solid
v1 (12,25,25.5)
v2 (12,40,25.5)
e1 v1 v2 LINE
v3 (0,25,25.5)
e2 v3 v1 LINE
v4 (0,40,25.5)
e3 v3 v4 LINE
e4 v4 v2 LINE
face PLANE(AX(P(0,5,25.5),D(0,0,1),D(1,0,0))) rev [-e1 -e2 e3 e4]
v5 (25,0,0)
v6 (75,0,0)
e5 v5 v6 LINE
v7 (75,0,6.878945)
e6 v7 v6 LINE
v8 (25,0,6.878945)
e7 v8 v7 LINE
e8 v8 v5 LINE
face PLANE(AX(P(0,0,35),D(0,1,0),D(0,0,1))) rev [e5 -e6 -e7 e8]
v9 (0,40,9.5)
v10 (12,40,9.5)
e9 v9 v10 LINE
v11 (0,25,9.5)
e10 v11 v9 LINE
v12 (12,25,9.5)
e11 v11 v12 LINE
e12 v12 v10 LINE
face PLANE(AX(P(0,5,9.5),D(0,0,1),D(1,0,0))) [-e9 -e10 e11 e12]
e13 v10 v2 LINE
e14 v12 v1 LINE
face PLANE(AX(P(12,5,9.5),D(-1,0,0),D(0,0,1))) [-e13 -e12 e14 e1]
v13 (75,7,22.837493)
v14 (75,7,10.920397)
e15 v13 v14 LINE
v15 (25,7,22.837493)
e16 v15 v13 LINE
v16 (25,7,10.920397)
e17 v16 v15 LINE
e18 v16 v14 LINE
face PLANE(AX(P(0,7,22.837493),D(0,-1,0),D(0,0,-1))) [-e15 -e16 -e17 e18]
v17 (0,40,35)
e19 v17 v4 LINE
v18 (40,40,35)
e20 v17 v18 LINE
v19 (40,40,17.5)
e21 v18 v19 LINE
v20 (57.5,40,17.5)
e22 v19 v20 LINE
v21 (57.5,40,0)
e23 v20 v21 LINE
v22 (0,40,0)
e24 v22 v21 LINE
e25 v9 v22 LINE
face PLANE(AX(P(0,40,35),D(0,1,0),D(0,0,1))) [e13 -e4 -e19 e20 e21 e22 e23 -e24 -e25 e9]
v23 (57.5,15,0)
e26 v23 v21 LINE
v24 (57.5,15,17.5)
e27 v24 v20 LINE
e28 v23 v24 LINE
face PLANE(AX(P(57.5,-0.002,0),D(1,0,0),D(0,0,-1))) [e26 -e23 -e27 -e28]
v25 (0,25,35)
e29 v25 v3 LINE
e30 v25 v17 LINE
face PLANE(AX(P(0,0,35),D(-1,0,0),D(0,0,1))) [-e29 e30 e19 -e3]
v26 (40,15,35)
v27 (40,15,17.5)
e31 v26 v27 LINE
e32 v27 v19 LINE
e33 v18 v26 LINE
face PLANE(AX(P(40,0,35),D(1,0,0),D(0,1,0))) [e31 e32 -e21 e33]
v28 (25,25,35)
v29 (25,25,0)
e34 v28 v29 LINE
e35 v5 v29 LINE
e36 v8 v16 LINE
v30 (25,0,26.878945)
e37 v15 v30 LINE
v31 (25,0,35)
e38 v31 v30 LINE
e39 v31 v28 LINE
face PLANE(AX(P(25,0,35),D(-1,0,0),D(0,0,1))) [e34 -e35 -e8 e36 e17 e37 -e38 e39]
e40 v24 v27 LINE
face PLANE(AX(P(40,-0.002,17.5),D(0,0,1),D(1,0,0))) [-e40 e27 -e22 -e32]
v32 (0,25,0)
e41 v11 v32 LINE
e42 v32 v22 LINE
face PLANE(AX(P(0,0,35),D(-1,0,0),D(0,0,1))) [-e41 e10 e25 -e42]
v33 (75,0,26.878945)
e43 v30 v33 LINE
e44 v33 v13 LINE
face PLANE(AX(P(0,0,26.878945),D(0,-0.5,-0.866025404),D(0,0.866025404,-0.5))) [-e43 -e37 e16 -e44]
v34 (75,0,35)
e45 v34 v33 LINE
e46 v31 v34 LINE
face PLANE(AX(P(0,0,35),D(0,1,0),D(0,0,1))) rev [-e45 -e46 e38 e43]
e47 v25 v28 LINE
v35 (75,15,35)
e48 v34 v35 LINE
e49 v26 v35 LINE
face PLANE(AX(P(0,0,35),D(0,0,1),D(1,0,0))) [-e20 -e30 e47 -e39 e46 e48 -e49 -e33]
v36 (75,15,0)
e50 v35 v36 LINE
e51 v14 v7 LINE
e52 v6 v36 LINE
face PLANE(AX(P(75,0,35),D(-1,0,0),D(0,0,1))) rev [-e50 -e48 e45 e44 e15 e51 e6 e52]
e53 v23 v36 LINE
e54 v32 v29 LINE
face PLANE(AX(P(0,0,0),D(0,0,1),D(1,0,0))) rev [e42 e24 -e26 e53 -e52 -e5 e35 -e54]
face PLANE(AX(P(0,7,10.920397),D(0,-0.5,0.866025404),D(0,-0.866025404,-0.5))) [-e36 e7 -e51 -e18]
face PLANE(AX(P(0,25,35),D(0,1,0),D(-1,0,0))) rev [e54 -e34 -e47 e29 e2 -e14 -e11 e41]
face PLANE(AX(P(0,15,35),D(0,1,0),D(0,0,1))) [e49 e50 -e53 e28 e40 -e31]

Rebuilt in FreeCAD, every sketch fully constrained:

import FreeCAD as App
import Part
import Sketcher
Q = App.Units.Quantity


def add_polygon(sketch, points):
    """Adds a closed chain of lines whose ends are joined by coincident constraints."""
    first, n = sketch.GeometryCount, len(points)
    for a, b in zip(points, points[1:] + points[:1]):
        sketch.addGeometry(Part.LineSegment(App.Vector(*a, 0), App.Vector(*b, 0)), False)
    for i in range(n):
        sketch.addConstraint(Sketcher.Constraint("Coincident", first + i, 2, first + (i + 1) % n, 1))

doc = App.newDocument("Part")
params = doc.addObject("Spreadsheet::Sheet", "Params")
for row, (alias, value) in enumerate([
    ("sketch1_width", "50 mm"),
    ("sketch1_width2", "35 mm"),
    ("sketch1_width3", "40 mm"),
    ("sketch1_height", "15 mm"),
    ("pad1_length", "35 mm"),
    ("sketch2_width", "12 mm"),
    ("sketch2_height", "16 mm"),
    ("pocket1_length", "35 mm"),
    ("sketch3_width", "17.5 mm"),
    ("sketch4_height", "20 mm"),
], start=1):
    params.set(f"A{row}", alias)
    params.set(f"B{row}", "=" + value)
    params.setAlias(f"B{row}", alias)

body = doc.addObject("PartDesign::Body", "Body")

# Sketch on XY plane
sketch1 = body.newObject("Sketcher::SketchObject", "Sketch")
sketch1.AttachmentSupport = (doc.getObject("XY_Plane"), [""])
sketch1.MapMode = "FlatFace"
add_polygon(sketch1, [(25, 25), (25, 0), (75, 0), (75, 15), (40, 15), (40, 40), (0, 40), (0, 25)])  # lines 0-7
sketch1.addConstraint([
    Sketcher.Constraint("Vertical", 0),
    Sketcher.Constraint("Horizontal", 1),
    Sketcher.Constraint("Vertical", 2),
    Sketcher.Constraint("Horizontal", 3),
    Sketcher.Constraint("Vertical", 4),
    Sketcher.Constraint("Horizontal", 5),
    Sketcher.Constraint("Vertical", 6),
    Sketcher.Constraint("Horizontal", 7),
    Sketcher.Constraint("PointOnObject", 0, 2, -1),
    Sketcher.Constraint("PointOnObject", 5, 2, -2),
    Sketcher.Constraint("Equal", 7, 0),
    Sketcher.Constraint("Equal", 0, 4),
    Sketcher.Constraint("DistanceX", 1, 1, 1, 2, Q("50 mm")),
    Sketcher.Constraint("DistanceX", 3, 2, 3, 1, Q("35 mm")),
    Sketcher.Constraint("DistanceX", 5, 2, 5, 1, Q("40 mm")),
    Sketcher.Constraint("DistanceY", 2, 1, 2, 2, Q("15 mm")),
])
sketch1.setExpression("Constraints[20]", "Params.sketch1_width")
sketch1.setExpression("Constraints[21]", "Params.sketch1_width2")
sketch1.setExpression("Constraints[22]", "Params.sketch1_width3")
sketch1.setExpression("Constraints[23]", "Params.sketch1_height")
pad1 = body.newObject("PartDesign::Pad", "Pad")
pad1.Profile = sketch1
pad1.setExpression("Length", "Params.pad1_length")

# Sketch on XZ plane
sketch2 = body.newObject("Sketcher::SketchObject", "Sketch001")
sketch2.AttachmentSupport = (doc.getObject("XZ_Plane"), [""])
sketch2.MapMode = "FlatFace"
sketch2.AttachmentOffset = App.Placement(App.Vector(0, 0, -40), App.Rotation())
add_polygon(sketch2, [(0, 10), (0, 26), (12, 26), (12, 10)])  # lines 0-3
sketch2.addConstraint([
    Sketcher.Constraint("Vertical", 0),
    Sketcher.Constraint("Horizontal", 1),
    Sketcher.Constraint("Vertical", 2),
    Sketcher.Constraint("Horizontal", 3),
    Sketcher.Constraint("PointOnObject", 0, 2, -2),
    Sketcher.Constraint("DistanceX", 1, 1, 1, 2, Q("12 mm")),
    Sketcher.Constraint("DistanceY", 0, 1, 0, 2, Q("16 mm")),
    Sketcher.Constraint("DistanceY", -1, 1, 0, 2, Q("25.5 mm")),
])
sketch2.setExpression("Constraints[9]", "Params.sketch2_width")
sketch2.setExpression("Constraints[10]", "Params.sketch2_height")
pocket1 = body.newObject("PartDesign::Pocket", "Pocket")
pocket1.Profile = sketch2
pocket1.setExpression("Length", "Params.pocket1_length")
pocket1.Reversed = True

# Sketch on XZ plane
sketch3 = body.newObject("Sketcher::SketchObject", "Sketch002")
sketch3.AttachmentSupport = (doc.getObject("XZ_Plane"), [""])
sketch3.MapMode = "FlatFace"
sketch3.AttachmentOffset = App.Placement(App.Vector(0, 0, -40), App.Rotation())
add_polygon(sketch3, [(40, 0), (40, 18), (58, 18), (58, 0)])  # lines 0-3
sketch3.addConstraint([
    Sketcher.Constraint("Vertical", 0),
    Sketcher.Constraint("Horizontal", 1),
    Sketcher.Constraint("Vertical", 2),
    Sketcher.Constraint("Horizontal", 3),
    Sketcher.Constraint("PointOnObject", 2, 2, -1),
    Sketcher.Constraint("Equal", 3, 0),
    Sketcher.Constraint("DistanceX", 1, 1, 1, 2, Q("17.5 mm")),
    Sketcher.Constraint("DistanceX", -1, 1, 0, 2, Q("40 mm")),
])
sketch3.setExpression("Constraints[10]", "Params.sketch3_width")
pad2 = body.newObject("PartDesign::Pad", "Pad001")
pad2.Profile = sketch3
pad2.Type = "UpToFirst"

# Sketch on YZ plane
sketch4 = body.newObject("Sketcher::SketchObject", "Sketch003")
sketch4.AttachmentSupport = (doc.getObject("YZ_Plane"), [""])
sketch4.MapMode = "FlatFace"
sketch4.AttachmentOffset = App.Placement(App.Vector(0, 0, 75), App.Rotation())
add_polygon(sketch4, [(7, 23), (0, 27), (0, 7), (7, 11)])  # lines 0-3
sketch4.addConstraint([
    Sketcher.Constraint("Vertical", 1),
    Sketcher.Constraint("Vertical", 3),
    Sketcher.Constraint("PointOnObject", 0, 2, -2),
    Sketcher.Constraint("Equal", 0, 2),
    Sketcher.Constraint("DistanceY", 1, 2, 1, 1, Q("20 mm")),
    Sketcher.Constraint("Angle", 0, Q("150 deg")),
    Sketcher.Constraint("DistanceX", -1, 1, 2, 2, Q("7 mm")),
    Sketcher.Constraint("DistanceY", -1, 1, 0, 2, Q("26.878945 mm")),
])
sketch4.setExpression("Constraints[8]", "Params.sketch4_height")
pocket2 = body.newObject("PartDesign::Pocket", "Pocket001")
pocket2.Profile = sketch4
pocket2.Type = "ThroughAll"

doc.recompute()
